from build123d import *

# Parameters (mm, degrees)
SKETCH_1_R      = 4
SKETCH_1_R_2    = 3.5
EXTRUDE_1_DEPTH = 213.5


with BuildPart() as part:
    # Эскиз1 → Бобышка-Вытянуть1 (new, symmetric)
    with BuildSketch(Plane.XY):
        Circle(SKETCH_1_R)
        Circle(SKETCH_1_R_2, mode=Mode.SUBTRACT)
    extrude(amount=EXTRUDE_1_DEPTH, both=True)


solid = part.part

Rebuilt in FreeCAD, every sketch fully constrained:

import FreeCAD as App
import Part
import Sketcher

V = App.Vector

doc = App.newDocument("Part")
params = doc.addObject("Spreadsheet::Sheet", "Params")
for row, (alias, value) in enumerate([
    ("sketch1_diameter", "8 mm"),
    ("sketch1_diameter2", "7 mm"),
    ("pad1_length", "427 mm"),
], start=1):
    params.set(f"A{row}", alias)
    params.set(f"B{row}", "=" + value)
    params.setAlias(f"B{row}", alias)

body = doc.addObject("PartDesign::Body", "Body")

sketch1 = body.newObject("Sketcher::SketchObject", "Sketch")
sketch1.AttachmentSupport = (doc.getObject("XY_Plane"), [""])
sketch1.MapMode = "FlatFace"
sketch1.addGeometry([
    Part.Circle(V(0, 0, 0), V(0, 0, 1), 4),
    Part.Circle(V(0, 0, 0), V(0, 0, 1), 3.5),
], False)
sketch1.addConstraint([
    Sketcher.Constraint("Coincident", 0, 3, -1, 1),
    Sketcher.Constraint("Coincident", 1, 3, -1, 1),
    Sketcher.Constraint("Diameter", 0, 8.0),
    Sketcher.Constraint("Diameter", 1, 7.0),
])
sketch1.setExpression("Constraints[2]", "Params.sketch1_diameter")
sketch1.setExpression("Constraints[3]", "Params.sketch1_diameter2")
pad1 = body.newObject("PartDesign::Pad", "Pad")
pad1.Profile = sketch1
pad1.setExpression("Length", "Params.pad1_length")
pad1.Midplane = True

doc.recompute()
